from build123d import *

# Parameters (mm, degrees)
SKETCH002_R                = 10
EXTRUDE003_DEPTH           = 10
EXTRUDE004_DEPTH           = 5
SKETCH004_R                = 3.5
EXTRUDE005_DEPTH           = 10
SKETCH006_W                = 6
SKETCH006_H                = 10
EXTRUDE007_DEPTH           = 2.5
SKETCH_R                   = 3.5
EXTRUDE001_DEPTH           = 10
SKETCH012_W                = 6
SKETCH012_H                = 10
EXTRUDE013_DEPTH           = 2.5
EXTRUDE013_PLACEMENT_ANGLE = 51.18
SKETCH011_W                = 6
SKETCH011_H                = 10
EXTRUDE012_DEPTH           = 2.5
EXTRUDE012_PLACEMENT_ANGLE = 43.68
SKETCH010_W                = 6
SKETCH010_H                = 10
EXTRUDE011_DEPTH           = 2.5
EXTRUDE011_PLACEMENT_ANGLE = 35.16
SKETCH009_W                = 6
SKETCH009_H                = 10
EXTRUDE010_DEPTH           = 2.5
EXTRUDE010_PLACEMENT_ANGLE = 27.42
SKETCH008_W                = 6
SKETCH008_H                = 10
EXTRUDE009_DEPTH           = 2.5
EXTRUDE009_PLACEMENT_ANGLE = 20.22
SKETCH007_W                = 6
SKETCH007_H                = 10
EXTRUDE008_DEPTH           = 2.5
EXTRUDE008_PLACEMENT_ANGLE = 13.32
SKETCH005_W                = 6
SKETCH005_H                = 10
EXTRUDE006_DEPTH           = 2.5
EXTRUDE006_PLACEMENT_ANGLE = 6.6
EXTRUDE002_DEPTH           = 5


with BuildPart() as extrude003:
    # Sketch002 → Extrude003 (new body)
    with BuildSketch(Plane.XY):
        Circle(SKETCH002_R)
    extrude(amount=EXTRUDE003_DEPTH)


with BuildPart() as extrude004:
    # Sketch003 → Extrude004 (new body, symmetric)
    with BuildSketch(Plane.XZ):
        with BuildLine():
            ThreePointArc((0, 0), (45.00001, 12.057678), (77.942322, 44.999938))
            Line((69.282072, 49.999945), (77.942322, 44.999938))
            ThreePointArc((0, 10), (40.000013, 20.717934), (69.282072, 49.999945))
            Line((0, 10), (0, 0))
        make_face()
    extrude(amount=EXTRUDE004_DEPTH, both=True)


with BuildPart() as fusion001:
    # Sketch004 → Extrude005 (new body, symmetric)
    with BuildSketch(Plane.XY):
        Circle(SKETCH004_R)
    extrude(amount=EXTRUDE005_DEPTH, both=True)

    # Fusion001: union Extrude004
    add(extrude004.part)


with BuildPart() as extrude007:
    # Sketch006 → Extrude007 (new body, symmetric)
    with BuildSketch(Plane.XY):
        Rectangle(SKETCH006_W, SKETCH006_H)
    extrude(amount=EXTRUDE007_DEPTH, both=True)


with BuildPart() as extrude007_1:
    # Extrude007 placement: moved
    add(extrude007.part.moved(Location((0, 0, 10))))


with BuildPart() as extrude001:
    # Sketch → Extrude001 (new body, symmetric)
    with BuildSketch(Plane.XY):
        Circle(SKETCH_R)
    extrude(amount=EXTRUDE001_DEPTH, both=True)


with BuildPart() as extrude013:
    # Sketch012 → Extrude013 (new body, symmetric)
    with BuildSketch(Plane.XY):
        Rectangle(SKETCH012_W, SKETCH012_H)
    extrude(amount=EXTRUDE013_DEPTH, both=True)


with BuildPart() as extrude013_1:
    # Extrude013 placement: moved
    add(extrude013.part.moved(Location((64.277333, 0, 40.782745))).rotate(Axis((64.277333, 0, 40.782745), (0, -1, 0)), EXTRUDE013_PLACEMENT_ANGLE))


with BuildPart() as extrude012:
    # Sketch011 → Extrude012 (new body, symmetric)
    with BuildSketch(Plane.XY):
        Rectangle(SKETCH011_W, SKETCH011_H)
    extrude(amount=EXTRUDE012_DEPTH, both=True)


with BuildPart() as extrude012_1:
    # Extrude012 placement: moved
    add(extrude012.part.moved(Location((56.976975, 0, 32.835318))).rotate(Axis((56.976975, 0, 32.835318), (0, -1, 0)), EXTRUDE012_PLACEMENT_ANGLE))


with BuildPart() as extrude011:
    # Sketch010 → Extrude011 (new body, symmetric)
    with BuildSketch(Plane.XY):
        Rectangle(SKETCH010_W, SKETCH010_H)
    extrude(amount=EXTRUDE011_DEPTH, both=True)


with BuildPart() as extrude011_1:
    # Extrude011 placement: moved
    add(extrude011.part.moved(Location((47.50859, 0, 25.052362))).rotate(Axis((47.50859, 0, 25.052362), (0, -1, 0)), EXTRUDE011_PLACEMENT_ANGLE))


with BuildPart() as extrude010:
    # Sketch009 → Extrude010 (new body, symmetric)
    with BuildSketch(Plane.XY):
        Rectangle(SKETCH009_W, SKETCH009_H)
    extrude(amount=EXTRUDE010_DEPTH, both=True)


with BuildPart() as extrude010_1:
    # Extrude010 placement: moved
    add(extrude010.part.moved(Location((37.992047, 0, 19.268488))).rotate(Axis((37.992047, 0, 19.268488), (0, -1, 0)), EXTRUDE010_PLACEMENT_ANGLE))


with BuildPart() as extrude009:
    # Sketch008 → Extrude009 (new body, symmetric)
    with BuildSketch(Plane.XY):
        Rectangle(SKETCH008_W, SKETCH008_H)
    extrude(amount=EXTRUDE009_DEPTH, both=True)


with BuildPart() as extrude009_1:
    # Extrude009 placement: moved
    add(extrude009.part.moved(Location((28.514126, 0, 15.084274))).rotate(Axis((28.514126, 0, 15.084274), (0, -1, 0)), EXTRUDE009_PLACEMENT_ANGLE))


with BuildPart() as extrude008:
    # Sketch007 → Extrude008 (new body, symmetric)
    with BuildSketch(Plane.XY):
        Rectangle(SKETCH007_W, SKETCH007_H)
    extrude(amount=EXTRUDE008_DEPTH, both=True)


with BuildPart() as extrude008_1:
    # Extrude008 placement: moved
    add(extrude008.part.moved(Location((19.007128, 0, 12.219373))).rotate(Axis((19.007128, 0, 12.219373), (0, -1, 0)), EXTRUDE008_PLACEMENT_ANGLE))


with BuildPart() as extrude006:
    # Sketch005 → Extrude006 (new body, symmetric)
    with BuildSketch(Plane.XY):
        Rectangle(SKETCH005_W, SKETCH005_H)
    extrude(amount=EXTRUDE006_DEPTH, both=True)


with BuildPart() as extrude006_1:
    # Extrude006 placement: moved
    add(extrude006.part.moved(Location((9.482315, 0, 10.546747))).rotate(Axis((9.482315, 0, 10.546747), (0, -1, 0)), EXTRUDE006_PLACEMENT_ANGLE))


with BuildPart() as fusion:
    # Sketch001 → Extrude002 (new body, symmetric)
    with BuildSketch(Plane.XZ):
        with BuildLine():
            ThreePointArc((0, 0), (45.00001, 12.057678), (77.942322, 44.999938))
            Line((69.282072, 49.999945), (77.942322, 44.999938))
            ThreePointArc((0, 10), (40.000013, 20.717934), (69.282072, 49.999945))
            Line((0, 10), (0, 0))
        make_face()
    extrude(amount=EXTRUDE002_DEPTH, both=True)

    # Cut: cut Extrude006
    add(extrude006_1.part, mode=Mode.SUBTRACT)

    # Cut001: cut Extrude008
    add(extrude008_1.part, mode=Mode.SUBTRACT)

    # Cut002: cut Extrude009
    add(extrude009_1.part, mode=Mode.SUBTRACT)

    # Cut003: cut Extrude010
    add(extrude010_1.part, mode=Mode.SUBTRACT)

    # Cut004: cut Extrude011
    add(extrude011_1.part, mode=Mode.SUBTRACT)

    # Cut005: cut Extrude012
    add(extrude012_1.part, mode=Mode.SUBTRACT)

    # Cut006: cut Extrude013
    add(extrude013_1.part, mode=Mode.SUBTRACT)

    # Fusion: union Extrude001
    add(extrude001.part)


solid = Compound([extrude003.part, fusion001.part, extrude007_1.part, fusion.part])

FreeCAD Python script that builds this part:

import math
import FreeCAD as App
import Part
import Sketcher
from FreeCAD import Vector
Q = App.Units.Quantity


def add_polygon(sketch, points):
    """Adds a closed chain of lines whose ends are joined by coincident constraints."""
    first, n = sketch.GeometryCount, len(points)
    for a, b in zip(points, points[1:] + points[:1]):
        sketch.addGeometry(Part.LineSegment(App.Vector(*a, 0), App.Vector(*b, 0)), False)
    for i in range(n):
        sketch.addConstraint(Sketcher.Constraint("Coincident", first + i, 2, first + (i + 1) % n, 1))

doc = App.newDocument("Part")
params = doc.addObject("Spreadsheet::Sheet", "Params")
for row, (alias, value) in enumerate([
    ("sketch1_diameter", "20 mm"),
    ("pad1_length", "10 mm"),
    ("sketch2_radius", "89.999999 mm"),
    ("sketch2_radius2", "80 mm"),
    ("pad2_length", "10 mm"),
    ("sketch3_diameter", "7 mm"),
    ("pad3_length", "20 mm"),
    ("sketch4_width", "6 mm"),
    ("sketch4_height", "10 mm"),
    ("pad4_length", "5 mm"),
    ("sketch5_diameter", "7 mm"),
    ("pad5_length", "20 mm"),
    ("sketch6_width", "6 mm"),
    ("sketch6_height", "10 mm"),
    ("pad6_length", "5 mm"),
    ("sketch7_width", "6 mm"),
    ("sketch7_height", "10 mm"),
    ("pad7_length", "5 mm"),
    ("sketch8_width", "6 mm"),
    ("sketch8_height", "10 mm"),
    ("pad8_length", "5 mm"),
    ("sketch9_width", "6 mm"),
    ("sketch9_height", "10 mm"),
    ("pad9_length", "5 mm"),
    ("sketch10_width", "6 mm"),
    ("sketch10_height", "10 mm"),
    ("pad10_length", "5 mm"),
    ("sketch11_width", "6 mm"),
    ("sketch11_height", "10 mm"),
    ("pad11_length", "5 mm"),
    ("sketch12_width", "6 mm"),
    ("sketch12_height", "10 mm"),
    ("pad12_length", "5 mm"),
    ("sketch13_radius", "89.999999 mm"),
    ("sketch13_radius2", "80 mm"),
    ("pad13_length", "10 mm"),
], start=1):
    params.set(f"A{row}", alias)
    params.set(f"B{row}", "=" + value)
    params.setAlias(f"B{row}", alias)

body = doc.addObject("PartDesign::Body", "Body")

# Sketch on XY plane
sketch1 = doc.addObject("Sketcher::SketchObject", "Sketch")
body.addObject(sketch1)
sketch1.AttachmentSupport = (doc.XY_Plane, [""])
sketch1.MapMode = "FlatFace"
sketch1.addGeometry(Part.Circle(Vector(0, 0, 0), Vector(0, 0, 1), 10), False)
sketch1.addConstraint(Sketcher.Constraint("Coincident", 0, 3, -1, 1))
sketch1.addConstraint(Sketcher.Constraint("Diameter", 0, Q("20 mm")))
sketch1.setExpression("Constraints[1]", "Params.sketch1_diameter")
pad1 = doc.addObject("PartDesign::Pad", "Pad")
body.addObject(pad1)
pad1.Profile = sketch1
pad1.setExpression("Length", "Params.pad1_length")
body2 = doc.addObject("PartDesign::Body", "Body001")

# Sketch on XZ plane
sketch2 = doc.addObject("Sketcher::SketchObject", "Sketch001")
body2.addObject(sketch2)
sketch2.AttachmentSupport = (doc.getObject("XZ_Plane001"), [""])
sketch2.MapMode = "FlatFace"
sketch2.addGeometry(Part.ArcOfCircle(Part.Circle(Vector(0.000072, 89.999999, 0), Vector(0, 0, 1), 89.999999), math.radians(-90.000046), math.radians(-30.000045)), False)
sketch2.addGeometry(Part.LineSegment(Vector(77.942322, 44.999938, 0), Vector(69.282072, 49.999945, 0)), False)
sketch2.addGeometry(Part.ArcOfCircle(Part.Circle(Vector(0.000071, 90, 0), Vector(0, 0, 1), 80), math.radians(-90.000051), math.radians(-30.000046)), False)
sketch2.addGeometry(Part.LineSegment(Vector(0, 10, 0), Vector(0, 0, 0)), False)
sketch2.addConstraint(Sketcher.Constraint("Coincident", 0, 2, 1, 1))
sketch2.addConstraint(Sketcher.Constraint("Coincident", 1, 2, 2, 2))
sketch2.addConstraint(Sketcher.Constraint("Coincident", 2, 1, 3, 1))
sketch2.addConstraint(Sketcher.Constraint("Coincident", 3, 2, 0, 1))
sketch2.addConstraint(Sketcher.Constraint("Vertical", 3))
sketch2.addConstraint(Sketcher.Constraint("Coincident", 3, 2, -1, 1))
sketch2.addConstraint(Sketcher.Constraint("Coincident", 2, 3, 0, 3))
sketch2.addConstraint(Sketcher.Constraint("Radius", 0, Q("89.999999 mm")))
sketch2.addConstraint(Sketcher.Constraint("Radius", 2, Q("80 mm")))
sketch2.addConstraint(Sketcher.Constraint("DistanceX", 0, 3, 1, 2, Q("69.282 mm")))
sketch2.addConstraint(Sketcher.Constraint("DistanceX", -1, 1, 0, 2, Q("77.942322 mm")))
sketch2.addConstraint(Sketcher.Constraint("DistanceY", -1, 1, 0, 2, Q("44.999938 mm")))
sketch2.setExpression("Constraints[7]", "Params.sketch2_radius")
sketch2.setExpression("Constraints[8]", "Params.sketch2_radius2")
pad2 = doc.addObject("PartDesign::Pad", "Pad001")
body2.addObject(pad2)
pad2.Profile = sketch2
pad2.setExpression("Length", "Params.pad2_length")
pad2.Midplane = True
body3 = doc.addObject("PartDesign::Body", "Body002")

# Sketch on XY plane
sketch3 = doc.addObject("Sketcher::SketchObject", "Sketch002")
body3.addObject(sketch3)
sketch3.AttachmentSupport = (doc.getObject("XY_Plane002"), [""])
sketch3.MapMode = "FlatFace"
sketch3.addGeometry(Part.Circle(Vector(0, 0, 0), Vector(0, 0, 1), 3.5), False)
sketch3.addConstraint(Sketcher.Constraint("Coincident", 0, 3, -1, 1))
sketch3.addConstraint(Sketcher.Constraint("Diameter", 0, Q("7 mm")))
sketch3.setExpression("Constraints[1]", "Params.sketch3_diameter")
pad3 = doc.addObject("PartDesign::Pad", "Pad002")
body3.addObject(pad3)
pad3.Profile = sketch3
pad3.setExpression("Length", "Params.pad3_length")
pad3.Midplane = True
doc.recompute()

boolean = doc.addObject("PartDesign::Boolean", "Boolean")
body3.addObject(boolean)
boolean.Type = "Fuse"
boolean.addObjects([body2])
body4 = doc.addObject("PartDesign::Body", "Body003")

# Sketch on XY plane
sketch4 = doc.addObject("Sketcher::SketchObject", "Sketch003")
body4.addObject(sketch4)
sketch4.AttachmentSupport = (doc.getObject("XY_Plane003"), [""])
sketch4.MapMode = "FlatFace"
add_polygon(sketch4, [(-3, 5), (-3, -5), (3, -5), (3, 5)])  # lines 0-3
sketch4.addConstraint(Sketcher.Constraint("Vertical", 0))
sketch4.addConstraint(Sketcher.Constraint("Horizontal", 1))
sketch4.addConstraint(Sketcher.Constraint("Vertical", 2))
sketch4.addConstraint(Sketcher.Constraint("Horizontal", 3))
sketch4.addConstraint(Sketcher.Constraint("Symmetric", 0, 2, 2, 2, -1, 1))
sketch4.addConstraint(Sketcher.Constraint("DistanceX", 1, 1, 1, 2, Q("6 mm")))
sketch4.addConstraint(Sketcher.Constraint("DistanceY", 0, 2, 0, 1, Q("10 mm")))
sketch4.setExpression("Constraints[9]", "Params.sketch4_width")
sketch4.setExpression("Constraints[10]", "Params.sketch4_height")
pad4 = doc.addObject("PartDesign::Pad", "Pad003")
body4.addObject(pad4)
pad4.Profile = sketch4
pad4.setExpression("Length", "Params.pad4_length")
pad4.Midplane = True
body5 = doc.addObject("PartDesign::Body", "Body004")
doc.recompute()

body4.Placement = App.Placement(Vector(0, 0, 10), App.Rotation(Vector(0, 0, 1), 0))
boolean2 = doc.addObject("PartDesign::Boolean", "Boolean001")
body5.addObject(boolean2)
boolean2.Type = "Fuse"
boolean2.addObjects([body4])
body6 = doc.addObject("PartDesign::Body", "Body005")

# Sketch on XY plane
sketch5 = doc.addObject("Sketcher::SketchObject", "Sketch004")
body6.addObject(sketch5)
sketch5.AttachmentSupport = (doc.getObject("XY_Plane005"), [""])
sketch5.MapMode = "FlatFace"
sketch5.addGeometry(Part.Circle(Vector(0, 0, 0), Vector(0, 0, 1), 3.5), False)
sketch5.addConstraint(Sketcher.Constraint("Coincident", 0, 3, -1, 1))
sketch5.addConstraint(Sketcher.Constraint("Diameter", 0, Q("7 mm")))
sketch5.setExpression("Constraints[1]", "Params.sketch5_diameter")
pad5 = doc.addObject("PartDesign::Pad", "Pad004")
body6.addObject(pad5)
pad5.Profile = sketch5
pad5.setExpression("Length", "Params.pad5_length")
pad5.Midplane = True
body7 = doc.addObject("PartDesign::Body", "Body006")

# Sketch on XY plane
sketch6 = doc.addObject("Sketcher::SketchObject", "Sketch005")
body7.addObject(sketch6)
sketch6.AttachmentSupport = (doc.getObject("XY_Plane006"), [""])
sketch6.MapMode = "FlatFace"
add_polygon(sketch6, [(-3, 5), (-3, -5), (3, -5), (3, 5)])  # lines 0-3
sketch6.addConstraint(Sketcher.Constraint("Vertical", 0))
sketch6.addConstraint(Sketcher.Constraint("Horizontal", 1))
sketch6.addConstraint(Sketcher.Constraint("Vertical", 2))
sketch6.addConstraint(Sketcher.Constraint("Horizontal", 3))
sketch6.addConstraint(Sketcher.Constraint("Symmetric", 0, 2, 2, 2, -1, 1))
sketch6.addConstraint(Sketcher.Constraint("DistanceX", 1, 1, 1, 2, Q("6 mm")))
sketch6.addConstraint(Sketcher.Constraint("DistanceY", 0, 2, 0, 1, Q("10 mm")))
sketch6.setExpression("Constraints[9]", "Params.sketch6_width")
sketch6.setExpression("Constraints[10]", "Params.sketch6_height")
pad6 = doc.addObject("PartDesign::Pad", "Pad005")
body7.addObject(pad6)
pad6.Profile = sketch6
pad6.setExpression("Length", "Params.pad6_length")
pad6.Midplane = True
body8 = doc.addObject("PartDesign::Body", "Body007")
doc.recompute()

body7.Placement = App.Placement(Vector(64.277333, 0, 40.782745), App.Rotation(Vector(0, -1, 0), 51.18))
boolean3 = doc.addObject("PartDesign::Boolean", "Boolean002")
body8.addObject(boolean3)
boolean3.Type = "Fuse"
boolean3.addObjects([body7])
body9 = doc.addObject("PartDesign::Body", "Body008")

# Sketch on XY plane
sketch7 = doc.addObject("Sketcher::SketchObject", "Sketch006")
body9.addObject(sketch7)
sketch7.AttachmentSupport = (doc.getObject("XY_Plane008"), [""])
sketch7.MapMode = "FlatFace"
add_polygon(sketch7, [(-3, 5), (-3, -5), (3, -5), (3, 5)])  # lines 0-3
sketch7.addConstraint(Sketcher.Constraint("Vertical", 0))
sketch7.addConstraint(Sketcher.Constraint("Horizontal", 1))
sketch7.addConstraint(Sketcher.Constraint("Vertical", 2))
sketch7.addConstraint(Sketcher.Constraint("Horizontal", 3))
sketch7.addConstraint(Sketcher.Constraint("Symmetric", 0, 2, 2, 2, -1, 1))
sketch7.addConstraint(Sketcher.Constraint("DistanceX", 1, 1, 1, 2, Q("6 mm")))
sketch7.addConstraint(Sketcher.Constraint("DistanceY", 0, 2, 0, 1, Q("10 mm")))
sketch7.setExpression("Constraints[9]", "Params.sketch7_width")
sketch7.setExpression("Constraints[10]", "Params.sketch7_height")
pad7 = doc.addObject("PartDesign::Pad", "Pad006")
body9.addObject(pad7)
pad7.Profile = sketch7
pad7.setExpression("Length", "Params.pad7_length")
pad7.Midplane = True
body10 = doc.addObject("PartDesign::Body", "Body009")
doc.recompute()

body9.Placement = App.Placement(Vector(56.976975, 0, 32.835318), App.Rotation(Vector(0, -1, 0), 43.68))
boolean4 = doc.addObject("PartDesign::Boolean", "Boolean003")
body10.addObject(boolean4)
boolean4.Type = "Fuse"
boolean4.addObjects([body9])
body11 = doc.addObject("PartDesign::Body", "Body010")

# Sketch on XY plane
sketch8 = doc.addObject("Sketcher::SketchObject", "Sketch007")
body11.addObject(sketch8)
sketch8.AttachmentSupport = (doc.getObject("XY_Plane010"), [""])
sketch8.MapMode = "FlatFace"
add_polygon(sketch8, [(-3, 5), (-3, -5), (3, -5), (3, 5)])  # lines 0-3
sketch8.addConstraint(Sketcher.Constraint("Vertical", 0))
sketch8.addConstraint(Sketcher.Constraint("Horizontal", 1))
sketch8.addConstraint(Sketcher.Constraint("Vertical", 2))
sketch8.addConstraint(Sketcher.Constraint("Horizontal", 3))
sketch8.addConstraint(Sketcher.Constraint("Symmetric", 0, 2, 2, 2, -1, 1))
sketch8.addConstraint(Sketcher.Constraint("DistanceX", 1, 1, 1, 2, Q("6 mm")))
sketch8.addConstraint(Sketcher.Constraint("DistanceY", 0, 2, 0, 1, Q("10 mm")))
sketch8.setExpression("Constraints[9]", "Params.sketch8_width")
sketch8.setExpression("Constraints[10]", "Params.sketch8_height")
pad8 = doc.addObject("PartDesign::Pad", "Pad007")
body11.addObject(pad8)
pad8.Profile = sketch8
pad8.setExpression("Length", "Params.pad8_length")
pad8.Midplane = True
body12 = doc.addObject("PartDesign::Body", "Body011")
doc.recompute()

body11.Placement = App.Placement(Vector(47.50859, 0, 25.052362), App.Rotation(Vector(0, -1, 0), 35.16))
boolean5 = doc.addObject("PartDesign::Boolean", "Boolean004")
body12.addObject(boolean5)
boolean5.Type = "Fuse"
boolean5.addObjects([body11])
body13 = doc.addObject("PartDesign::Body", "Body012")

# Sketch on XY plane
sketch9 = doc.addObject("Sketcher::SketchObject", "Sketch008")
body13.addObject(sketch9)
sketch9.AttachmentSupport = (doc.getObject("XY_Plane012"), [""])
sketch9.MapMode = "FlatFace"
add_polygon(sketch9, [(-3, 5), (-3, -5), (3, -5), (3, 5)])  # lines 0-3
sketch9.addConstraint(Sketcher.Constraint("Vertical", 0))
sketch9.addConstraint(Sketcher.Constraint("Horizontal", 1))
sketch9.addConstraint(Sketcher.Constraint("Vertical", 2))
sketch9.addConstraint(Sketcher.Constraint("Horizontal", 3))
sketch9.addConstraint(Sketcher.Constraint("Symmetric", 0, 2, 2, 2, -1, 1))
sketch9.addConstraint(Sketcher.Constraint("DistanceX", 1, 1, 1, 2, Q("6 mm")))
sketch9.addConstraint(Sketcher.Constraint("DistanceY", 0, 2, 0, 1, Q("10 mm")))
sketch9.setExpression("Constraints[9]", "Params.sketch9_width")
sketch9.setExpression("Constraints[10]", "Params.sketch9_height")
pad9 = doc.addObject("PartDesign::Pad", "Pad008")
body13.addObject(pad9)
pad9.Profile = sketch9
pad9.setExpression("Length", "Params.pad9_length")
pad9.Midplane = True
body14 = doc.addObject("PartDesign::Body", "Body013")
doc.recompute()

body13.Placement = App.Placement(Vector(37.992047, 0, 19.268488), App.Rotation(Vector(0, -1, 0), 27.42))
boolean6 = doc.addObject("PartDesign::Boolean", "Boolean005")
body14.addObject(boolean6)
boolean6.Type = "Fuse"
boolean6.addObjects([body13])
body15 = doc.addObject("PartDesign::Body", "Body014")

# Sketch on XY plane
sketch10 = doc.addObject("Sketcher::SketchObject", "Sketch009")
body15.addObject(sketch10)
sketch10.AttachmentSupport = (doc.getObject("XY_Plane014"), [""])
sketch10.MapMode = "FlatFace"
add_polygon(sketch10, [(-3, 5), (-3, -5), (3, -5), (3, 5)])  # lines 0-3
sketch10.addConstraint(Sketcher.Constraint("Vertical", 0))
sketch10.addConstraint(Sketcher.Constraint("Horizontal", 1))
sketch10.addConstraint(Sketcher.Constraint("Vertical", 2))
sketch10.addConstraint(Sketcher.Constraint("Horizontal", 3))
sketch10.addConstraint(Sketcher.Constraint("Symmetric", 0, 2, 2, 2, -1, 1))
sketch10.addConstraint(Sketcher.Constraint("DistanceX", 1, 1, 1, 2, Q("6 mm")))
sketch10.addConstraint(Sketcher.Constraint("DistanceY", 0, 2, 0, 1, Q("10 mm")))
sketch10.setExpression("Constraints[9]", "Params.sketch10_width")
sketch10.setExpression("Constraints[10]", "Params.sketch10_height")
pad10 = doc.addObject("PartDesign::Pad", "Pad009")
body15.addObject(pad10)
pad10.Profile = sketch10
pad10.setExpression("Length", "Params.pad10_length")
pad10.Midplane = True
body16 = doc.addObject("PartDesign::Body", "Body015")
doc.recompute()

body15.Placement = App.Placement(Vector(28.514126, 0, 15.084274), App.Rotation(Vector(0, -1, 0), 20.22))
boolean7 = doc.addObject("PartDesign::Boolean", "Boolean006")
body16.addObject(boolean7)
boolean7.Type = "Fuse"
boolean7.addObjects([body15])
body17 = doc.addObject("PartDesign::Body", "Body016")

# Sketch on XY plane
sketch11 = doc.addObject("Sketcher::SketchObject", "Sketch010")
body17.addObject(sketch11)
sketch11.AttachmentSupport = (doc.getObject("XY_Plane016"), [""])
sketch11.MapMode = "FlatFace"
add_polygon(sketch11, [(-3, 5), (-3, -5), (3, -5), (3, 5)])  # lines 0-3
sketch11.addConstraint(Sketcher.Constraint("Vertical", 0))
sketch11.addConstraint(Sketcher.Constraint("Horizontal", 1))
sketch11.addConstraint(Sketcher.Constraint("Vertical", 2))
sketch11.addConstraint(Sketcher.Constraint("Horizontal", 3))
sketch11.addConstraint(Sketcher.Constraint("Symmetric", 0, 2, 2, 2, -1, 1))
sketch11.addConstraint(Sketcher.Constraint("DistanceX", 1, 1, 1, 2, Q("6 mm")))
sketch11.addConstraint(Sketcher.Constraint("DistanceY", 0, 2, 0, 1, Q("10 mm")))
sketch11.setExpression("Constraints[9]", "Params.sketch11_width")
sketch11.setExpression("Constraints[10]", "Params.sketch11_height")
pad11 = doc.addObject("PartDesign::Pad", "Pad010")
body17.addObject(pad11)
pad11.Profile = sketch11
pad11.setExpression("Length", "Params.pad11_length")
pad11.Midplane = True
body18 = doc.addObject("PartDesign::Body", "Body017")
doc.recompute()

body17.Placement = App.Placement(Vector(19.007128, 0, 12.219373), App.Rotation(Vector(0, -1, 0), 13.32))
boolean8 = doc.addObject("PartDesign::Boolean", "Boolean007")
body18.addObject(boolean8)
boolean8.Type = "Fuse"
boolean8.addObjects([body17])
body19 = doc.addObject("PartDesign::Body", "Body018")

# Sketch on XY plane
sketch12 = doc.addObject("Sketcher::SketchObject", "Sketch011")
body19.addObject(sketch12)
sketch12.AttachmentSupport = (doc.getObject("XY_Plane018"), [""])
sketch12.MapMode = "FlatFace"
add_polygon(sketch12, [(-3, 5), (-3, -5), (3, -5), (3, 5)])  # lines 0-3
sketch12.addConstraint(Sketcher.Constraint("Vertical", 0))
sketch12.addConstraint(Sketcher.Constraint("Horizontal", 1))
sketch12.addConstraint(Sketcher.Constraint("Vertical", 2))
sketch12.addConstraint(Sketcher.Constraint("Horizontal", 3))
sketch12.addConstraint(Sketcher.Constraint("Symmetric", 0, 2, 2, 2, -1, 1))
sketch12.addConstraint(Sketcher.Constraint("DistanceX", 1, 1, 1, 2, Q("6 mm")))
sketch12.addConstraint(Sketcher.Constraint("DistanceY", 0, 2, 0, 1, Q("10 mm")))
sketch12.setExpression("Constraints[9]", "Params.sketch12_width")
sketch12.setExpression("Constraints[10]", "Params.sketch12_height")
pad12 = doc.addObject("PartDesign::Pad", "Pad011")
body19.addObject(pad12)
pad12.Profile = sketch12
pad12.setExpression("Length", "Params.pad12_length")
pad12.Midplane = True
body20 = doc.addObject("PartDesign::Body", "Body019")
doc.recompute()

body19.Placement = App.Placement(Vector(9.482315, 0, 10.546747), App.Rotation(Vector(0, -1, 0), 6.6))
boolean9 = doc.addObject("PartDesign::Boolean", "Boolean008")
body20.addObject(boolean9)
boolean9.Type = "Fuse"
boolean9.addObjects([body19])
body21 = doc.addObject("PartDesign::Body", "Body020")

# Sketch on XZ plane
sketch13 = doc.addObject("Sketcher::SketchObject", "Sketch012")
body21.addObject(sketch13)
sketch13.AttachmentSupport = (doc.getObject("XZ_Plane020"), [""])
sketch13.MapMode = "FlatFace"
sketch13.addGeometry(Part.ArcOfCircle(Part.Circle(Vector(0.000072, 89.999999, 0), Vector(0, 0, 1), 89.999999), math.radians(-90.000046), math.radians(-30.000045)), False)
sketch13.addGeometry(Part.LineSegment(Vector(77.942322, 44.999938, 0), Vector(69.282072, 49.999945, 0)), False)
sketch13.addGeometry(Part.ArcOfCircle(Part.Circle(Vector(0.000071, 90, 0), Vector(0, 0, 1), 80), math.radians(-90.000051), math.radians(-30.000046)), False)
sketch13.addGeometry(Part.LineSegment(Vector(0, 10, 0), Vector(0, 0, 0)), False)
sketch13.addConstraint(Sketcher.Constraint("Coincident", 0, 2, 1, 1))
sketch13.addConstraint(Sketcher.Constraint("Coincident", 1, 2, 2, 2))
sketch13.addConstraint(Sketcher.Constraint("Coincident", 2, 1, 3, 1))
sketch13.addConstraint(Sketcher.Constraint("Coincident", 3, 2, 0, 1))
sketch13.addConstraint(Sketcher.Constraint("Vertical", 3))
sketch13.addConstraint(Sketcher.Constraint("Coincident", 3, 2, -1, 1))
sketch13.addConstraint(Sketcher.Constraint("Coincident", 2, 3, 0, 3))
sketch13.addConstraint(Sketcher.Constraint("Radius", 0, Q("89.999999 mm")))
sketch13.addConstraint(Sketcher.Constraint("Radius", 2, Q("80 mm")))
sketch13.addConstraint(Sketcher.Constraint("DistanceX", 0, 3, 1, 2, Q("69.282 mm")))
sketch13.addConstraint(Sketcher.Constraint("DistanceX", -1, 1, 0, 2, Q("77.942322 mm")))
sketch13.addConstraint(Sketcher.Constraint("DistanceY", -1, 1, 0, 2, Q("44.999938 mm")))
sketch13.setExpression("Constraints[7]", "Params.sketch13_radius")
sketch13.setExpression("Constraints[8]", "Params.sketch13_radius2")
pad13 = doc.addObject("PartDesign::Pad", "Pad012")
body21.addObject(pad13)
pad13.Profile = sketch13
pad13.setExpression("Length", "Params.pad13_length")
pad13.Midplane = True
doc.recompute()

boolean10 = doc.addObject("PartDesign::Boolean", "Boolean009")
body21.addObject(boolean10)
boolean10.Type = "Cut"
boolean10.addObjects([body20])
doc.recompute()

boolean11 = doc.addObject("PartDesign::Boolean", "Boolean010")
body21.addObject(boolean11)
boolean11.Type = "Cut"
boolean11.addObjects([body18])
doc.recompute()

boolean12 = doc.addObject("PartDesign::Boolean", "Boolean011")
body21.addObject(boolean12)
boolean12.Type = "Cut"
boolean12.addObjects([body16])
doc.recompute()

boolean13 = doc.addObject("PartDesign::Boolean", "Boolean012")
body21.addObject(boolean13)
boolean13.Type = "Cut"
boolean13.addObjects([body14])
doc.recompute()

boolean14 = doc.addObject("PartDesign::Boolean", "Boolean013")
body21.addObject(boolean14)
boolean14.Type = "Cut"
boolean14.addObjects([body12])
doc.recompute()

boolean15 = doc.addObject("PartDesign::Boolean", "Boolean014")
body21.addObject(boolean15)
boolean15.Type = "Cut"
boolean15.addObjects([body10])
doc.recompute()

boolean16 = doc.addObject("PartDesign::Boolean", "Boolean015")
body21.addObject(boolean16)
boolean16.Type = "Cut"
boolean16.addObjects([body8])
doc.recompute()

boolean17 = doc.addObject("PartDesign::Boolean", "Boolean016")
body21.addObject(boolean17)
boolean17.Type = "Fuse"
boolean17.addObjects([body6])

doc.recompute()
